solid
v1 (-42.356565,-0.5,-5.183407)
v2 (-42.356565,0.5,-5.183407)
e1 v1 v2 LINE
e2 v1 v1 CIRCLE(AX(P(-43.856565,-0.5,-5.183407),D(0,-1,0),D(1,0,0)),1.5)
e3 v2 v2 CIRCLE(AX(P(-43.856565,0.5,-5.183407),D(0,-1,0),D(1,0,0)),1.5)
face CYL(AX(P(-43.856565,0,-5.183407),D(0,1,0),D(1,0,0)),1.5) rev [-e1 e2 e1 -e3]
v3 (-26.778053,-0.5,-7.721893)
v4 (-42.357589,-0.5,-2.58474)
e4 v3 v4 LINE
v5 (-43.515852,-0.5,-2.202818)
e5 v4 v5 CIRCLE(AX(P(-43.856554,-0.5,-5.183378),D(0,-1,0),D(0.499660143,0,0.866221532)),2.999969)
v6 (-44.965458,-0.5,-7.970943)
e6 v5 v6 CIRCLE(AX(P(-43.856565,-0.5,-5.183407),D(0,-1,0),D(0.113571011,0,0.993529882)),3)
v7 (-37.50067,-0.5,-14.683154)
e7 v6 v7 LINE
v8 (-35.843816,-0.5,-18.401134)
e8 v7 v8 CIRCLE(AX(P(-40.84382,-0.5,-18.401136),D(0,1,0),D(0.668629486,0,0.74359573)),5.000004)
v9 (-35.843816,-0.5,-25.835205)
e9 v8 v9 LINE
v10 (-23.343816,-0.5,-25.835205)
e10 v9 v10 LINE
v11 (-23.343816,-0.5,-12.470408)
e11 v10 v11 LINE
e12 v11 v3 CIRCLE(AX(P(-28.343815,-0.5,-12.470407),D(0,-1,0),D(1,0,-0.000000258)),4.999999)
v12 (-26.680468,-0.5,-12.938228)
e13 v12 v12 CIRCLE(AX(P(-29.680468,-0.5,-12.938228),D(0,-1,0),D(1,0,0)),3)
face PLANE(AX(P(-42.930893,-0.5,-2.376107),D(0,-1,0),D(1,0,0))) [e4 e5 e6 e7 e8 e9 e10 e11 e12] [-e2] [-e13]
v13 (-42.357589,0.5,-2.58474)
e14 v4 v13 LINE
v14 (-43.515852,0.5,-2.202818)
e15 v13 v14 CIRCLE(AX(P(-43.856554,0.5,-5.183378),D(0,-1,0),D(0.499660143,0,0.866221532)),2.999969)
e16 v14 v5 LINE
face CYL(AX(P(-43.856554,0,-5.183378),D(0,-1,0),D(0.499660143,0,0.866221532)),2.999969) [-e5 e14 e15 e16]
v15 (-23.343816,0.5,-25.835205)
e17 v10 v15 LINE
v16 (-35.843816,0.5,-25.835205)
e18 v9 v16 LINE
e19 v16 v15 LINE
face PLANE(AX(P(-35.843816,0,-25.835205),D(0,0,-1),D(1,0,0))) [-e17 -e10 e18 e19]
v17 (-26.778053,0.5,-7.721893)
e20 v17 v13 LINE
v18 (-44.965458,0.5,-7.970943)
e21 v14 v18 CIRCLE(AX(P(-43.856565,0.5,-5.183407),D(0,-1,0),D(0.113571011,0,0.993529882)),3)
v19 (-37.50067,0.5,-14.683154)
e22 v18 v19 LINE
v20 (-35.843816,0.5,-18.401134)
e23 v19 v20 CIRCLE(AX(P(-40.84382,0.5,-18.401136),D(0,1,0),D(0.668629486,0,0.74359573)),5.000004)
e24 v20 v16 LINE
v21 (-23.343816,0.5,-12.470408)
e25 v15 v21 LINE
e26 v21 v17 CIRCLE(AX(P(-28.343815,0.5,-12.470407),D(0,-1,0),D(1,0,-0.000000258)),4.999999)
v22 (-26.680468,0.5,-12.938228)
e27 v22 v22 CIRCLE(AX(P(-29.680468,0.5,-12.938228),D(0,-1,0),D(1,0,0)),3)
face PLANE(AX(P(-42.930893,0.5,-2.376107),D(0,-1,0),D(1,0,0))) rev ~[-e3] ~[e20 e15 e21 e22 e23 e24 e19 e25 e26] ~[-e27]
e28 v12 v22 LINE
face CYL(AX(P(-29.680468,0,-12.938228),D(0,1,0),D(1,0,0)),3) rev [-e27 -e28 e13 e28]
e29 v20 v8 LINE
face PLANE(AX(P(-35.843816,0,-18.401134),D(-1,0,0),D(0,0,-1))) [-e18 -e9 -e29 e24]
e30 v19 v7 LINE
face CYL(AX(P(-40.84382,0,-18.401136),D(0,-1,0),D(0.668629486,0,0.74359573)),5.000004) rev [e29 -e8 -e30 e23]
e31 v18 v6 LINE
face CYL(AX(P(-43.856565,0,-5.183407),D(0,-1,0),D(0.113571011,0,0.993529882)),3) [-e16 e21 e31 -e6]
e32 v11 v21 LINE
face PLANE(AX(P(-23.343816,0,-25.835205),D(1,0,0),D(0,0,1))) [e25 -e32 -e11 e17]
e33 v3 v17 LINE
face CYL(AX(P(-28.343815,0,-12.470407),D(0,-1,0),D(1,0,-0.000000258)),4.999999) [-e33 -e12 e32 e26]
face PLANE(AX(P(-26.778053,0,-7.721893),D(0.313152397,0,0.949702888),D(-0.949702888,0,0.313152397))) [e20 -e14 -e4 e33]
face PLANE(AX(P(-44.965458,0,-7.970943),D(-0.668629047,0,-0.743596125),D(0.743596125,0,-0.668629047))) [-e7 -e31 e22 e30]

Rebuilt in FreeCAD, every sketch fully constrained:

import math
import FreeCAD as App
import Part
import Sketcher

V = App.Vector
Q = App.Units.Quantity

doc = App.newDocument("Part")
body = doc.addObject("PartDesign::Body", "Body")

# Sketch on XZ plane
sketch1 = body.newObject("Sketcher::SketchObject", "Sketch")
sketch1.AttachmentSupport = (doc.getObject("XZ_Plane"), [""])
sketch1.MapMode = "FlatFace"
sketch1.addGeometry(Part.ArcOfCircle(Part.Circle(V(-43.856554, -5.183378, 0), V(0, 0, 1), 2.999969), math.radians(60.022482), math.radians(83.478933)), False)
sketch1.addGeometry(Part.ArcOfCircle(Part.Circle(V(-43.856565, -5.183407, 0), V(0, 0, 1), 3), math.radians(83.47879), math.radians(248.307136)), False)
sketch1.addGeometry(Part.LineSegment(V(-44.965458, -7.970943, 0), V(-37.50067, -14.683154, 0)), False)
sketch1.addGeometry(Part.ArcOfCircle(Part.Circle(V(-40.84382, -18.401136, 0), V(0, 0, 1), 5.000004), math.radians(0.000021), math.radians(48.038624)), False)
sketch1.addGeometry(Part.LineSegment(V(-35.843816, -18.401134, 0), V(-35.843816, -25.835205, 0)), False)
sketch1.addGeometry(Part.LineSegment(V(-35.843816, -25.835205, 0), V(-23.343816, -25.835205, 0)), False)
sketch1.addGeometry(Part.LineSegment(V(-23.343816, -25.835205, 0), V(-23.343816, -12.470408, 0)), False)
sketch1.addGeometry(Part.ArcOfCircle(Part.Circle(V(-28.343815, -12.470407, 0), V(0, 0, 1), 4.999999), math.radians(-0.000015), math.radians(71.750681)), False)
sketch1.addGeometry(Part.LineSegment(V(-26.778053, -7.721893, 0), V(-42.357589, -2.58474, 0)), False)
sketch1.addGeometry(Part.Circle(V(-29.680468, -12.938228, 0), V(0, 0, 1), 3), False)
sketch1.addGeometry(Part.Circle(V(-43.856565, -5.183407, 0), V(0, 0, 1), 1.5), False)
sketch1.addConstraint(Sketcher.Constraint("Coincident", 0, 2, 1, 1))
sketch1.addConstraint(Sketcher.Constraint("Coincident", 1, 2, 2, 1))
sketch1.addConstraint(Sketcher.Constraint("Tangent", 2, 2, 3, 2))
sketch1.addConstraint(Sketcher.Constraint("Tangent", 3, 1, 4, 1))
sketch1.addConstraint(Sketcher.Constraint("Coincident", 4, 2, 5, 1))
sketch1.addConstraint(Sketcher.Constraint("Coincident", 5, 2, 6, 1))
sketch1.addConstraint(Sketcher.Constraint("Tangent", 6, 2, 7, 1))
sketch1.addConstraint(Sketcher.Constraint("Tangent", 7, 2, 8, 1))
sketch1.addConstraint(Sketcher.Constraint("Coincident", 8, 2, 0, 1))
sketch1.addConstraint(Sketcher.Constraint("Vertical", 4))
sketch1.addConstraint(Sketcher.Constraint("Horizontal", 5))
sketch1.addConstraint(Sketcher.Constraint("Vertical", 6))
sketch1.addConstraint(Sketcher.Constraint("Coincident", 10, 3, 1, 3))
sketch1.addConstraint(Sketcher.Constraint("Equal", 1, 9))
sketch1.addConstraint(Sketcher.Constraint("Diameter", 9, Q("6 mm")))
sketch1.addConstraint(Sketcher.Constraint("Diameter", 10, Q("3 mm")))
sketch1.addConstraint(Sketcher.Constraint("Radius", 7, Q("4.999999 mm")))
sketch1.addConstraint(Sketcher.Constraint("DistanceX", 5, 1, 5, 2, Q("12.5 mm")))
sketch1.addConstraint(Sketcher.Constraint("Radius", 0, Q("2.999969 mm")))
sketch1.addConstraint(Sketcher.Constraint("Radius", 3, Q("5.000004 mm")))
sketch1.addConstraint(Sketcher.Constraint("DistanceY", 7, 3, 1, 3, Q("7.286999 mm")))
sketch1.addConstraint(Sketcher.Constraint("DistanceY", 4, 2, 4, 1, Q("7.434071 mm")))
sketch1.addConstraint(Sketcher.Constraint("DistanceX", 2, 2, 9, 3, Q("7.820202 mm")))
sketch1.addConstraint(Sketcher.Constraint("DistanceY", 4, 2, 7, 3, Q("13.364798 mm")))
sketch1.addConstraint(Sketcher.Constraint("DistanceY", 0, 3, -1, 1, Q("5.183378 mm")))
sketch1.addConstraint(Sketcher.Constraint("DistanceX", 3, 3, -1, 1, Q("40.84382 mm")))
sketch1.addConstraint(Sketcher.Constraint("DistanceX", 9, 3, -1, 1, Q("29.680468 mm")))
sketch1.addConstraint(Sketcher.Constraint("DistanceY", 0, 2, -1, 1, Q("2.202818 mm")))
sketch1.addConstraint(Sketcher.Constraint("DistanceY", 6, 2, -1, 1, Q("12.470408 mm")))
sketch1.addConstraint(Sketcher.Constraint("DistanceX", 8, 2, -1, 1, Q("42.357589 mm")))
sketch1.addConstraint(Sketcher.Constraint("DistanceY", 8, 2, -1, 1, Q("2.58474 mm")))
sketch1.addConstraint(Sketcher.Constraint("DistanceY", 9, 3, 7, 3, Q("0.467821 mm")))
pad1 = body.newObject("PartDesign::Pad", "Pad")
pad1.Profile = sketch1
pad1.Length = 1
pad1.Midplane = True

doc.recompute()
